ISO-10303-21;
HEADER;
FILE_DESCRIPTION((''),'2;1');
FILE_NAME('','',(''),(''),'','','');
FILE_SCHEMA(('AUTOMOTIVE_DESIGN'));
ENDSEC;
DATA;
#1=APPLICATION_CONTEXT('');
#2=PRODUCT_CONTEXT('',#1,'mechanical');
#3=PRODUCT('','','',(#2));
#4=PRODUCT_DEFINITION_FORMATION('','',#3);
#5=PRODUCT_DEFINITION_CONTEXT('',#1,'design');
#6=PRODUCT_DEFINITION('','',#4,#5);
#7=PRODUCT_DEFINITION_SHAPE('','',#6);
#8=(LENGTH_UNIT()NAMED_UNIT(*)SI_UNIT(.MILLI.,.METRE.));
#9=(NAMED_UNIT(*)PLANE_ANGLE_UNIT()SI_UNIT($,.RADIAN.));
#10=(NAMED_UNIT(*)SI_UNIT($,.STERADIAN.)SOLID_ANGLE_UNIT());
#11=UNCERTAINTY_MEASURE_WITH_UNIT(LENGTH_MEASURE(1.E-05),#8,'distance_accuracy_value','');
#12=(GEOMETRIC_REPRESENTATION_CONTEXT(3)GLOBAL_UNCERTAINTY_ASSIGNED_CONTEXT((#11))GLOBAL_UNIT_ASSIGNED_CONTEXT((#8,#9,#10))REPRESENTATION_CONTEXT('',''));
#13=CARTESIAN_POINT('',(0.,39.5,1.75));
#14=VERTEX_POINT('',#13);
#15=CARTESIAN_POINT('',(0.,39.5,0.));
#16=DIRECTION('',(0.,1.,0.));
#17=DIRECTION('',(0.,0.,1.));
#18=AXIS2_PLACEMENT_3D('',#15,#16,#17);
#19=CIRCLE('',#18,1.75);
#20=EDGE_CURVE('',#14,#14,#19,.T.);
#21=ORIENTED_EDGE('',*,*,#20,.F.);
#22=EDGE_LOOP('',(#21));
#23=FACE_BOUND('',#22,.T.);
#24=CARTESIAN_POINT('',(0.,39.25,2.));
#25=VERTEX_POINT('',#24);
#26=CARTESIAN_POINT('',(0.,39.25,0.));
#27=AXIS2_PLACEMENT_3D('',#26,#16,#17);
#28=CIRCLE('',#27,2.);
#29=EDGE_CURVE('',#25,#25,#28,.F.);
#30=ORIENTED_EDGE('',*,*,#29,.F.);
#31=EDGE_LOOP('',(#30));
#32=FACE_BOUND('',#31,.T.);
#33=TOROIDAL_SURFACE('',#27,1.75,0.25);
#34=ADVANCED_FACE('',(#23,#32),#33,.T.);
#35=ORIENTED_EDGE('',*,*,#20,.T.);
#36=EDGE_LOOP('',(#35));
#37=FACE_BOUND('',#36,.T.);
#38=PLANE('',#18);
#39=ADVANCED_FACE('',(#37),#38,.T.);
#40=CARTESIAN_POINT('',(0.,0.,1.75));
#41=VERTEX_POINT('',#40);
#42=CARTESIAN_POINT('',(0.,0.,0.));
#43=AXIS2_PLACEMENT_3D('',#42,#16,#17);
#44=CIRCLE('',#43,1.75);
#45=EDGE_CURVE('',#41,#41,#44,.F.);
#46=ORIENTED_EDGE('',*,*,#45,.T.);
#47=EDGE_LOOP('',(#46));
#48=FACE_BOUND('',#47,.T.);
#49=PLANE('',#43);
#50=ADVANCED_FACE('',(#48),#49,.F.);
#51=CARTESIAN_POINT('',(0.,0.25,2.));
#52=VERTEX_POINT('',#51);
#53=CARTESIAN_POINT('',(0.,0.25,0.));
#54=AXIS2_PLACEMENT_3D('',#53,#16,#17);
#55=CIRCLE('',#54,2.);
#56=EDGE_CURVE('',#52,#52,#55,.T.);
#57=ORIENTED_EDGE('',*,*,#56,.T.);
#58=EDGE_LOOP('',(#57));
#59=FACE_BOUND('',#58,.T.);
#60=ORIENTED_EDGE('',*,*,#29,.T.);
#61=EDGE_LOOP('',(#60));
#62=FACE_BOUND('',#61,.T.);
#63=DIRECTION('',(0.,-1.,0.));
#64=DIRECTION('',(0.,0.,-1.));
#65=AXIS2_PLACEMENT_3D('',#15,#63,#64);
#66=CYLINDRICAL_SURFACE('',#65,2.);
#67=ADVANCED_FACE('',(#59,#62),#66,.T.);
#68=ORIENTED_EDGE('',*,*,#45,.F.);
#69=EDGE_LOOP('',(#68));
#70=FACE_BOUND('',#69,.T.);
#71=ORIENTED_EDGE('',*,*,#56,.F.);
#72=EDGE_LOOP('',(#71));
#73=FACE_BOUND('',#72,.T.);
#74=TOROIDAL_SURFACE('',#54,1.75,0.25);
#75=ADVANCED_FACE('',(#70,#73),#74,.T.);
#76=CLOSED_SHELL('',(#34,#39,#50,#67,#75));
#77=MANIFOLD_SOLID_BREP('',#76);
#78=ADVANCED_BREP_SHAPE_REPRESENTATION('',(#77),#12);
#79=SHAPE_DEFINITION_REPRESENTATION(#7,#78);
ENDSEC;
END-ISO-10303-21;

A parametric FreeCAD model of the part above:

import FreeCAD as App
import Part
import Sketcher
from FreeCAD import Vector
Q = App.Units.Quantity


def edges_at(feature, points):
    """Names of the edges that pass closest to the given points."""
    edges = feature.Shape.Edges
    near = lambda p: min(range(len(edges)), key=lambda i: edges[i].distToShape(Part.Vertex(*p))[0])
    return sorted({f"Edge{near(p) + 1}" for p in points})

doc = App.newDocument("Part")
body = doc.addObject("PartDesign::Body", "Body")

sketch1 = doc.addObject("Sketcher::SketchObject", "Sketch")
body.addObject(sketch1)
sketch1.AttachmentSupport = (doc.XZ_Plane, [""])
sketch1.MapMode = "FlatFace"
sketch1.addGeometry(Part.Circle(Vector(0, 0, 0), Vector(0, 0, 1), 2), False)
sketch1.addConstraint(Sketcher.Constraint("Coincident", 0, 3, -1, 1))
sketch1.addConstraint(Sketcher.Constraint("Diameter", 0, Q("4 mm")))
pad1 = doc.addObject("PartDesign::Pad", "Pad")
body.addObject(pad1)
pad1.Profile = sketch1
pad1.Length = 39.5
pad1.Reversed = True
doc.recompute()

fillet = doc.addObject("PartDesign::Fillet", "Fillet")
body.addObject(fillet)
fillet.Base = (pad1, edges_at(pad1, [(0, 0, -2), (0, 39.5, -2)]))
fillet.Radius = 0.25

doc.recompute()
